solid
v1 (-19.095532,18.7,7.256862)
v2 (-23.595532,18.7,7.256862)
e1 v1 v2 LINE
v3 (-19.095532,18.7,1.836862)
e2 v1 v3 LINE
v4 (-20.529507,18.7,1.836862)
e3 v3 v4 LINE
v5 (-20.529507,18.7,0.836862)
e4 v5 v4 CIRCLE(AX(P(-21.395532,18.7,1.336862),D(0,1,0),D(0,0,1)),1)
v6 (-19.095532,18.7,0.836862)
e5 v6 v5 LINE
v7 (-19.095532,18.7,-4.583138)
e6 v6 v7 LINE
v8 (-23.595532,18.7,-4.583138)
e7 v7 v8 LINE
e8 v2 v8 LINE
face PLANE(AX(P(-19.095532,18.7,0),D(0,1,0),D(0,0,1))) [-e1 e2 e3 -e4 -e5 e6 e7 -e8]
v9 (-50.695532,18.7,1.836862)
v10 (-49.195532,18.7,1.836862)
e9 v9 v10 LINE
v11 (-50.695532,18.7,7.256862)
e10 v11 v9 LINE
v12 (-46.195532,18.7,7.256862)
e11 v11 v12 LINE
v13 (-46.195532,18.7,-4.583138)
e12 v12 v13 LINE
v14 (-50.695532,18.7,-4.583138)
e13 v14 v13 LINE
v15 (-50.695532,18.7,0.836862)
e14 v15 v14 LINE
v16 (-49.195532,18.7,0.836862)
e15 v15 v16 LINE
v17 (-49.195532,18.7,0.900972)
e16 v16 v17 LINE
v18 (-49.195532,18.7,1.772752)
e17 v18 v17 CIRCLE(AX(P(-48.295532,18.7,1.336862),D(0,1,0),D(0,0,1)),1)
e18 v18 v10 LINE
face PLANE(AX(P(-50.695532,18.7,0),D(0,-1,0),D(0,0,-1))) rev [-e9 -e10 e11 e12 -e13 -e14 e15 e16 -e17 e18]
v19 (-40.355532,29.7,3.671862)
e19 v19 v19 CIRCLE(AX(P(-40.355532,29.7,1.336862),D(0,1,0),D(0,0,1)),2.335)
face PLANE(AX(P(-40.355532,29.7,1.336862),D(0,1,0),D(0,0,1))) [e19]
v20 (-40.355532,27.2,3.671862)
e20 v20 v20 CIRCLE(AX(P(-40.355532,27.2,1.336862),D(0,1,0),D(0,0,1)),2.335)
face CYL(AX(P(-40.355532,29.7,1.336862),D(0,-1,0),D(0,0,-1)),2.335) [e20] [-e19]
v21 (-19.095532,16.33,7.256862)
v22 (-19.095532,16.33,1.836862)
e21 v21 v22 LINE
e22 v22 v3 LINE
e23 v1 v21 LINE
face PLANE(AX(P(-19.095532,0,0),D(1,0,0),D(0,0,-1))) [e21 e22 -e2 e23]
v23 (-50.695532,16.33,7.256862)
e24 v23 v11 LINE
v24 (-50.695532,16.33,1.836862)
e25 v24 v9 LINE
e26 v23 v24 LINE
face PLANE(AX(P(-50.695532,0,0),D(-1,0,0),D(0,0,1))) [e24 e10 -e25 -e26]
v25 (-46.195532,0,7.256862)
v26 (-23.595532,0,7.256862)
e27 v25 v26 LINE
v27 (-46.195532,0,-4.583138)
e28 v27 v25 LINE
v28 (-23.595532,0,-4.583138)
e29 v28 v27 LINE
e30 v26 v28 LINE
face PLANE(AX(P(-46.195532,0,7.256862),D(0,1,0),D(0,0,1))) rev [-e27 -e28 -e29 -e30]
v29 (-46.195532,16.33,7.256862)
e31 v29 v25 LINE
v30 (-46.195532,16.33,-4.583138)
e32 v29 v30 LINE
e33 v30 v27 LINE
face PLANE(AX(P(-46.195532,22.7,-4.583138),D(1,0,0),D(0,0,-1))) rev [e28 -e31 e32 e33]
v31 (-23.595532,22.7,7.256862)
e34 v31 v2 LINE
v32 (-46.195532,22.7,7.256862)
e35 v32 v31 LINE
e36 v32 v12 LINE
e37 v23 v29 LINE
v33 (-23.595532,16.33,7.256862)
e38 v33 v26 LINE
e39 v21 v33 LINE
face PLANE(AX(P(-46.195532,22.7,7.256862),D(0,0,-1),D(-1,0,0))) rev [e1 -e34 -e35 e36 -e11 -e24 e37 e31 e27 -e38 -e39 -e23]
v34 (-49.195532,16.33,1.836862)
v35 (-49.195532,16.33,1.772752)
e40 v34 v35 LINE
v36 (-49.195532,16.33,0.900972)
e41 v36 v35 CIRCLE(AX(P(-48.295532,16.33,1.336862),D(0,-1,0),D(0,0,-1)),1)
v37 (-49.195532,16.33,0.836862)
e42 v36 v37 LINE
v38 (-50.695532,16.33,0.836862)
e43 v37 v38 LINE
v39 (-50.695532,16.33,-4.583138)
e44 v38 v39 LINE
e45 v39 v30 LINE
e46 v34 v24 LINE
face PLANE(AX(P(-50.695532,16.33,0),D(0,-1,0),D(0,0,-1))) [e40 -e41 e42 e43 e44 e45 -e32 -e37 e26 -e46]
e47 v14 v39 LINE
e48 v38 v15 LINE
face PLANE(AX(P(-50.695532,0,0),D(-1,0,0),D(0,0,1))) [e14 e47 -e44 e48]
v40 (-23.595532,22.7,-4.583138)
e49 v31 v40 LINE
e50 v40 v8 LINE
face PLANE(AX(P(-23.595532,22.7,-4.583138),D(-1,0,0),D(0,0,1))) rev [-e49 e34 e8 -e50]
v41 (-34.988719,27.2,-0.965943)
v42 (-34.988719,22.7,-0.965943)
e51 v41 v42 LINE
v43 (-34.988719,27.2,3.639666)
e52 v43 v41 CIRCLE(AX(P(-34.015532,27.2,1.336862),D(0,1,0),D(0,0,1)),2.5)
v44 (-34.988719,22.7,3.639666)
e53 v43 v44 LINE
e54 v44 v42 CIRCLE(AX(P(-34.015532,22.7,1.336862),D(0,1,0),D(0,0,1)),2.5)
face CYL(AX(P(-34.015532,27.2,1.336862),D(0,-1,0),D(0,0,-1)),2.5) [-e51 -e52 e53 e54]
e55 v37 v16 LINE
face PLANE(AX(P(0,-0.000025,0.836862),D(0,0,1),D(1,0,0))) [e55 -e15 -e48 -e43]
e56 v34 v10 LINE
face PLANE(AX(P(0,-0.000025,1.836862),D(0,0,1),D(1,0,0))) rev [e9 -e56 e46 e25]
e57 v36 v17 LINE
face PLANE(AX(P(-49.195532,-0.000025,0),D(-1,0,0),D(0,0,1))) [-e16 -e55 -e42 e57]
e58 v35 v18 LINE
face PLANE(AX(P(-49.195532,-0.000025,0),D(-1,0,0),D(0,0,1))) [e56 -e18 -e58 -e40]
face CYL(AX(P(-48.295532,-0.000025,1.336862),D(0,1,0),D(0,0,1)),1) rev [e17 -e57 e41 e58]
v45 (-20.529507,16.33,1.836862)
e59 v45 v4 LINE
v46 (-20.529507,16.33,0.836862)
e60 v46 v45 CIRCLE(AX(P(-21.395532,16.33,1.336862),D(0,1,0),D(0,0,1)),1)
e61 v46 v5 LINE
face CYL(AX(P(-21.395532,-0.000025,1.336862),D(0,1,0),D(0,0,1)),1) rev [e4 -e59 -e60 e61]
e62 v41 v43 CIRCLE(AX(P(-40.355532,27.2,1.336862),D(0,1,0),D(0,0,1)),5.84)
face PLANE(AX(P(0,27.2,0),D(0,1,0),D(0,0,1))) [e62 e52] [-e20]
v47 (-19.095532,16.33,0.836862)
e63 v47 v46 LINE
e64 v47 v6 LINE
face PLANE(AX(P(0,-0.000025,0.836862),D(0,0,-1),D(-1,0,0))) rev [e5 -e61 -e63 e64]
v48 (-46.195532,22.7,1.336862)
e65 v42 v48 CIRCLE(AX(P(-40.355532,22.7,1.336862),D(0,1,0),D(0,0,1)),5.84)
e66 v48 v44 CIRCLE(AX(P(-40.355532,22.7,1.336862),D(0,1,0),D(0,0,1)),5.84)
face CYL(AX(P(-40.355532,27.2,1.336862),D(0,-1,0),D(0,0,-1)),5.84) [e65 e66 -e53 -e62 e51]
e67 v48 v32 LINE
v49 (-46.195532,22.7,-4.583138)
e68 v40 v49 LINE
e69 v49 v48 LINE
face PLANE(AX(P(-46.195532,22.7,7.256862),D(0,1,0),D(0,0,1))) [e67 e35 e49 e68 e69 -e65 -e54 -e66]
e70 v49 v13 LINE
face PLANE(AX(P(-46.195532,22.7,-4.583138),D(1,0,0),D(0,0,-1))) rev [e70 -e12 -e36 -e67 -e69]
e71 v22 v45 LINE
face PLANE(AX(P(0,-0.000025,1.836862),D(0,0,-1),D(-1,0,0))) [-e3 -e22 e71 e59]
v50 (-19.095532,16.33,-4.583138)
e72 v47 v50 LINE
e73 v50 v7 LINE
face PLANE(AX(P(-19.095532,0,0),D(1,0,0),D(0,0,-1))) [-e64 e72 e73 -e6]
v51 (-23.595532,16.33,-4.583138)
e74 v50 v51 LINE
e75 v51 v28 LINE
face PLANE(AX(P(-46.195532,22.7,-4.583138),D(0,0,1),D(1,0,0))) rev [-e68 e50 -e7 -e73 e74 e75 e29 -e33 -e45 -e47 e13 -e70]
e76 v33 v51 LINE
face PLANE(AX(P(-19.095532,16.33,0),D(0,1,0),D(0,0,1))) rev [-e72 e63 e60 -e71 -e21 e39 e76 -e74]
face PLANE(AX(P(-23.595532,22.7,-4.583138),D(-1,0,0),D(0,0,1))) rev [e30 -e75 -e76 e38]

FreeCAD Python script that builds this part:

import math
import FreeCAD as App
import Part
import Sketcher
from FreeCAD import Vector


def add_polygon(sketch, points):
    """Adds a closed chain of lines whose ends are joined by coincident constraints."""
    first, n = sketch.GeometryCount, len(points)
    for a, b in zip(points, points[1:] + points[:1]):
        sketch.addGeometry(Part.LineSegment(App.Vector(*a, 0), App.Vector(*b, 0)), False)
    for i in range(n):
        sketch.addConstraint(Sketcher.Constraint("Coincident", first + i, 2, first + (i + 1) % n, 1))

doc = App.newDocument("Part")
body = doc.addObject("PartDesign::Body", "Body")

# Sketch on XZ plane
sketch1 = body.newObject("Sketcher::SketchObject", "Sketch")
sketch1.AttachmentSupport = (doc.getObject("XZ_Plane"), [""])
sketch1.MapMode = "FlatFace"
add_polygon(sketch1, [(-46.195532, -4.583138), (-46.195532, 7.256862), (-23.595532, 7.256862), (-23.595532, -4.583138)])  # lines 0-3
sketch1.addConstraint([
    Sketcher.Constraint("Vertical", 0),
    Sketcher.Constraint("Horizontal", 1),
    Sketcher.Constraint("Vertical", 2),
    Sketcher.Constraint("Horizontal", 3),
    Sketcher.Constraint("DistanceX", 1, 1, 1, 2, 22.6),
    Sketcher.Constraint("DistanceY", 0, 1, 0, 2, 11.84),
    Sketcher.Constraint("DistanceY", -1, 1, 0, 2, 7.256862),
    Sketcher.Constraint("DistanceX", 0, 2, -1, 1, 46.195532),
])
pad1 = body.newObject("PartDesign::Pad", "Pad")
pad1.Profile = sketch1
pad1.Length = 22.7
pad1.Reversed = True

# Sketch on XZ plane
sketch2 = body.newObject("Sketcher::SketchObject", "Sketch001")
sketch2.AttachmentSupport = (doc.getObject("XZ_Plane"), [""])
sketch2.MapMode = "FlatFace"
sketch2.AttachmentOffset = App.Placement(Vector(0, 0, -22.7), App.Rotation())
sketch2.addGeometry(Part.Circle(Vector(-40.355532, 1.336862, 0), Vector(0, 0, 1), 5.84), False)
sketch2.addConstraint([
    Sketcher.Constraint("Diameter", 0, 11.68),
    Sketcher.Constraint("DistanceY", -1, 1, 0, 3, 1.336862),
    Sketcher.Constraint("DistanceX", 0, 3, -1, 1, 40.355532),
])
pad2 = body.newObject("PartDesign::Pad", "Pad001")
pad2.Profile = sketch2
pad2.Length = 4.5
pad2.Reversed = True

# Sketch on XZ plane
sketch3 = body.newObject("Sketcher::SketchObject", "Sketch002")
sketch3.AttachmentSupport = (doc.getObject("XZ_Plane"), [""])
sketch3.MapMode = "FlatFace"
sketch3.AttachmentOffset = App.Placement(Vector(0, 0, -27.2), App.Rotation())
sketch3.addGeometry(Part.Circle(Vector(-40.355532, 1.336862, 0), Vector(0, 0, 1), 2.335), False)
sketch3.addConstraint([
    Sketcher.Constraint("Diameter", 0, 4.67),
    Sketcher.Constraint("DistanceY", -1, 1, 0, 3, 1.336862),
    Sketcher.Constraint("DistanceX", 0, 3, -1, 1, 40.355532),
])
pad3 = body.newObject("PartDesign::Pad", "Pad002")
pad3.Profile = sketch3
pad3.Length = 2.5
pad3.Reversed = True

# Sketch on XZ plane
sketch4 = body.newObject("Sketcher::SketchObject", "Sketch003")
sketch4.AttachmentSupport = (doc.getObject("XZ_Plane"), [""])
sketch4.MapMode = "FlatFace"
sketch4.AttachmentOffset = App.Placement(Vector(0, 0, -22.7), App.Rotation())
sketch4.addGeometry(Part.Circle(Vector(-34.015532, 1.336862, 0), Vector(0, 0, 1), 2.5), False)
sketch4.addConstraint([
    Sketcher.Constraint("Diameter", 0, 5.0),
    Sketcher.Constraint("DistanceY", -1, 1, 0, 3, 1.336862),
    Sketcher.Constraint("DistanceX", 0, 3, -1, 1, 34.015532),
])
pad4 = body.newObject("PartDesign::Pad", "Pad003")
pad4.Profile = sketch4
pad4.Length = 4.5
pad4.Reversed = True

# Sketch on YZ plane
sketch5 = body.newObject("Sketcher::SketchObject", "Sketch004")
sketch5.AttachmentSupport = (doc.getObject("YZ_Plane"), [""])
sketch5.MapMode = "FlatFace"
sketch5.AttachmentOffset = App.Placement(Vector(0, 0, -23.595532), App.Rotation())
add_polygon(sketch5, [(18.7, 7.256862), (16.33, 7.256862), (16.33, -4.583138), (18.7, -4.583138)])  # lines 0-3
sketch5.addConstraint([
    Sketcher.Constraint("Horizontal", 0),
    Sketcher.Constraint("Vertical", 1),
    Sketcher.Constraint("Horizontal", 2),
    Sketcher.Constraint("Vertical", 3),
    Sketcher.Constraint("DistanceX", 0, 2, 0, 1, 2.37),
    Sketcher.Constraint("DistanceY", 1, 2, 1, 1, 11.84),
    Sketcher.Constraint("DistanceX", -1, 1, 2, 2, 18.7),
    Sketcher.Constraint("DistanceY", -1, 1, 0, 2, 7.256862),
])
pad5 = body.newObject("PartDesign::Pad", "Pad004")
pad5.Profile = sketch5
pad5.Length = 4.5

# Sketch on XZ plane
sketch6 = body.newObject("Sketcher::SketchObject", "Sketch005")
sketch6.AttachmentSupport = (doc.getObject("XZ_Plane"), [""])
sketch6.MapMode = "FlatFace"
sketch6.AttachmentOffset = App.Placement(Vector(0, 0, -18.7), App.Rotation())
sketch6.addGeometry([
    Part.ArcOfCircle(Part.Circle(Vector(-21.395532, 1.336862, 0), Vector(0, 0, 1), 1), math.radians(30), math.radians(330)),  # 0
    Part.LineSegment(Vector(-20.529507, 1.836862, 0), Vector(-19.095532, 1.836862, 0)),  # 1
    Part.LineSegment(Vector(-19.095532, 1.836862, 0), Vector(-19.095532, 0.836862, 0)),  # 2
    Part.LineSegment(Vector(-19.095532, 0.836862, 0), Vector(-20.529507, 0.836862, 0)),  # 3
    Part.Circle(Vector(-48.395532, 1.336862, 0), Vector(0, 0, 1), 1),  # 4
], False)
sketch6.addConstraint([
    Sketcher.Constraint("Coincident", 0, 1, 1, 1),
    Sketcher.Constraint("Coincident", 1, 2, 2, 1),
    Sketcher.Constraint("Coincident", 2, 2, 3, 1),
    Sketcher.Constraint("Coincident", 3, 2, 0, 2),
    Sketcher.Constraint("Horizontal", 1),
    Sketcher.Constraint("Vertical", 2),
    Sketcher.Constraint("Horizontal", 3),
    Sketcher.Constraint("Equal", 0, 4),
    Sketcher.Constraint("Horizontal", 0, 3, 4, 3),
    Sketcher.Constraint("Vertical", 0, 1, 3, 2),
    Sketcher.Constraint("Diameter", 4, 2.0),
    Sketcher.Constraint("DistanceY", 2, 2, 2, 1, 1.0),
    Sketcher.Constraint("DistanceX", 4, 3, 0, 3, 27.0),
    Sketcher.Constraint("DistanceX", 0, 3, 1, 2, 2.3),
    Sketcher.Constraint("DistanceY", -1, 1, 0, 3, 1.336862),
    Sketcher.Constraint("DistanceX", 0, 3, -1, 1, 21.395532),
])
pocket1 = body.newObject("PartDesign::Pocket", "Pocket")
pocket1.Profile = sketch6
pocket1.Type = "ThroughAll"
pocket1.Reversed = True

# Sketch on YZ plane
sketch7 = body.newObject("Sketcher::SketchObject", "Sketch006")
sketch7.AttachmentSupport = (doc.getObject("YZ_Plane"), [""])
sketch7.MapMode = "FlatFace"
sketch7.AttachmentOffset = App.Placement(Vector(0, 0, -46.195532), App.Rotation())
add_polygon(sketch7, [(18.7, -4.583138), (16.33, -4.583138), (16.33, 7.256862), (18.7, 7.256862)])  # lines 0-3
sketch7.addConstraint([
    Sketcher.Constraint("Horizontal", 0),
    Sketcher.Constraint("Vertical", 1),
    Sketcher.Constraint("Horizontal", 2),
    Sketcher.Constraint("Vertical", 3),
    Sketcher.Constraint("DistanceX", 0, 2, 0, 1, 2.37),
    Sketcher.Constraint("DistanceY", 1, 1, 1, 2, 11.84),
    Sketcher.Constraint("DistanceX", -1, 1, 2, 2, 18.7),
    Sketcher.Constraint("DistanceY", 0, 2, -1, 1, 4.583138),
])
pad6 = body.newObject("PartDesign::Pad", "Pad005")
pad6.Profile = sketch7
pad6.Length = 4.5
pad6.Reversed = True

# Sketch on XZ plane
sketch8 = body.newObject("Sketcher::SketchObject", "Sketch007")
sketch8.AttachmentSupport = (doc.getObject("XZ_Plane"), [""])
sketch8.MapMode = "FlatFace"
sketch8.AttachmentOffset = App.Placement(Vector(0, 0, -18.7), App.Rotation())
sketch8.addGeometry([
    Part.LineSegment(Vector(-49.195532, 0.900972, 0), Vector(-49.195532, 0.836862, 0)),  # 0
    Part.LineSegment(Vector(-49.195532, 0.836862, 0), Vector(-50.695532, 0.836862, 0)),  # 1
    Part.LineSegment(Vector(-50.695532, 0.836862, 0), Vector(-50.695532, 1.836862, 0)),  # 2
    Part.LineSegment(Vector(-50.695532, 1.836862, 0), Vector(-49.195532, 1.836862, 0)),  # 3
    Part.LineSegment(Vector(-49.195532, 1.836862, 0), Vector(-49.195532, 1.772752, 0)),  # 4
    Part.ArcOfCircle(Part.Circle(Vector(-48.295532, 1.336862, 0), Vector(0, 0, 1), 1), math.radians(-154.158067), math.radians(154.158067)),  # 5
], False)
sketch8.addConstraint([
    Sketcher.Constraint("Coincident", 0, 2, 1, 1),
    Sketcher.Constraint("Coincident", 1, 2, 2, 1),
    Sketcher.Constraint("Coincident", 2, 2, 3, 1),
    Sketcher.Constraint("Coincident", 3, 2, 4, 1),
    Sketcher.Constraint("Coincident", 4, 2, 5, 2),
    Sketcher.Constraint("Coincident", 5, 1, 0, 1),
    Sketcher.Constraint("Vertical", 0),
    Sketcher.Constraint("Horizontal", 1),
    Sketcher.Constraint("Vertical", 2),
    Sketcher.Constraint("Horizontal", 3),
    Sketcher.Constraint("Vertical", 4),
    Sketcher.Constraint("Vertical", 0, 2, 3, 2),
    Sketcher.Constraint("Equal", 0, 4),
    Sketcher.Constraint("Radius", 5, 1.0),
    Sketcher.Constraint("DistanceY", 2, 1, 2, 2, 1.0),
    Sketcher.Constraint("DistanceX", 1, 2, 1, 1, 1.5),
    Sketcher.Constraint("DistanceX", 0, 2, 5, 3, 0.9),
    Sketcher.Constraint("DistanceY", -1, 1, 5, 3, 1.336862),
    Sketcher.Constraint("DistanceX", 5, 3, -1, 1, 48.295532),
])
pocket2 = body.newObject("PartDesign::Pocket", "Pocket001")
pocket2.Profile = sketch8
pocket2.Type = "ThroughAll"
pocket2.Reversed = True

doc.recompute()
